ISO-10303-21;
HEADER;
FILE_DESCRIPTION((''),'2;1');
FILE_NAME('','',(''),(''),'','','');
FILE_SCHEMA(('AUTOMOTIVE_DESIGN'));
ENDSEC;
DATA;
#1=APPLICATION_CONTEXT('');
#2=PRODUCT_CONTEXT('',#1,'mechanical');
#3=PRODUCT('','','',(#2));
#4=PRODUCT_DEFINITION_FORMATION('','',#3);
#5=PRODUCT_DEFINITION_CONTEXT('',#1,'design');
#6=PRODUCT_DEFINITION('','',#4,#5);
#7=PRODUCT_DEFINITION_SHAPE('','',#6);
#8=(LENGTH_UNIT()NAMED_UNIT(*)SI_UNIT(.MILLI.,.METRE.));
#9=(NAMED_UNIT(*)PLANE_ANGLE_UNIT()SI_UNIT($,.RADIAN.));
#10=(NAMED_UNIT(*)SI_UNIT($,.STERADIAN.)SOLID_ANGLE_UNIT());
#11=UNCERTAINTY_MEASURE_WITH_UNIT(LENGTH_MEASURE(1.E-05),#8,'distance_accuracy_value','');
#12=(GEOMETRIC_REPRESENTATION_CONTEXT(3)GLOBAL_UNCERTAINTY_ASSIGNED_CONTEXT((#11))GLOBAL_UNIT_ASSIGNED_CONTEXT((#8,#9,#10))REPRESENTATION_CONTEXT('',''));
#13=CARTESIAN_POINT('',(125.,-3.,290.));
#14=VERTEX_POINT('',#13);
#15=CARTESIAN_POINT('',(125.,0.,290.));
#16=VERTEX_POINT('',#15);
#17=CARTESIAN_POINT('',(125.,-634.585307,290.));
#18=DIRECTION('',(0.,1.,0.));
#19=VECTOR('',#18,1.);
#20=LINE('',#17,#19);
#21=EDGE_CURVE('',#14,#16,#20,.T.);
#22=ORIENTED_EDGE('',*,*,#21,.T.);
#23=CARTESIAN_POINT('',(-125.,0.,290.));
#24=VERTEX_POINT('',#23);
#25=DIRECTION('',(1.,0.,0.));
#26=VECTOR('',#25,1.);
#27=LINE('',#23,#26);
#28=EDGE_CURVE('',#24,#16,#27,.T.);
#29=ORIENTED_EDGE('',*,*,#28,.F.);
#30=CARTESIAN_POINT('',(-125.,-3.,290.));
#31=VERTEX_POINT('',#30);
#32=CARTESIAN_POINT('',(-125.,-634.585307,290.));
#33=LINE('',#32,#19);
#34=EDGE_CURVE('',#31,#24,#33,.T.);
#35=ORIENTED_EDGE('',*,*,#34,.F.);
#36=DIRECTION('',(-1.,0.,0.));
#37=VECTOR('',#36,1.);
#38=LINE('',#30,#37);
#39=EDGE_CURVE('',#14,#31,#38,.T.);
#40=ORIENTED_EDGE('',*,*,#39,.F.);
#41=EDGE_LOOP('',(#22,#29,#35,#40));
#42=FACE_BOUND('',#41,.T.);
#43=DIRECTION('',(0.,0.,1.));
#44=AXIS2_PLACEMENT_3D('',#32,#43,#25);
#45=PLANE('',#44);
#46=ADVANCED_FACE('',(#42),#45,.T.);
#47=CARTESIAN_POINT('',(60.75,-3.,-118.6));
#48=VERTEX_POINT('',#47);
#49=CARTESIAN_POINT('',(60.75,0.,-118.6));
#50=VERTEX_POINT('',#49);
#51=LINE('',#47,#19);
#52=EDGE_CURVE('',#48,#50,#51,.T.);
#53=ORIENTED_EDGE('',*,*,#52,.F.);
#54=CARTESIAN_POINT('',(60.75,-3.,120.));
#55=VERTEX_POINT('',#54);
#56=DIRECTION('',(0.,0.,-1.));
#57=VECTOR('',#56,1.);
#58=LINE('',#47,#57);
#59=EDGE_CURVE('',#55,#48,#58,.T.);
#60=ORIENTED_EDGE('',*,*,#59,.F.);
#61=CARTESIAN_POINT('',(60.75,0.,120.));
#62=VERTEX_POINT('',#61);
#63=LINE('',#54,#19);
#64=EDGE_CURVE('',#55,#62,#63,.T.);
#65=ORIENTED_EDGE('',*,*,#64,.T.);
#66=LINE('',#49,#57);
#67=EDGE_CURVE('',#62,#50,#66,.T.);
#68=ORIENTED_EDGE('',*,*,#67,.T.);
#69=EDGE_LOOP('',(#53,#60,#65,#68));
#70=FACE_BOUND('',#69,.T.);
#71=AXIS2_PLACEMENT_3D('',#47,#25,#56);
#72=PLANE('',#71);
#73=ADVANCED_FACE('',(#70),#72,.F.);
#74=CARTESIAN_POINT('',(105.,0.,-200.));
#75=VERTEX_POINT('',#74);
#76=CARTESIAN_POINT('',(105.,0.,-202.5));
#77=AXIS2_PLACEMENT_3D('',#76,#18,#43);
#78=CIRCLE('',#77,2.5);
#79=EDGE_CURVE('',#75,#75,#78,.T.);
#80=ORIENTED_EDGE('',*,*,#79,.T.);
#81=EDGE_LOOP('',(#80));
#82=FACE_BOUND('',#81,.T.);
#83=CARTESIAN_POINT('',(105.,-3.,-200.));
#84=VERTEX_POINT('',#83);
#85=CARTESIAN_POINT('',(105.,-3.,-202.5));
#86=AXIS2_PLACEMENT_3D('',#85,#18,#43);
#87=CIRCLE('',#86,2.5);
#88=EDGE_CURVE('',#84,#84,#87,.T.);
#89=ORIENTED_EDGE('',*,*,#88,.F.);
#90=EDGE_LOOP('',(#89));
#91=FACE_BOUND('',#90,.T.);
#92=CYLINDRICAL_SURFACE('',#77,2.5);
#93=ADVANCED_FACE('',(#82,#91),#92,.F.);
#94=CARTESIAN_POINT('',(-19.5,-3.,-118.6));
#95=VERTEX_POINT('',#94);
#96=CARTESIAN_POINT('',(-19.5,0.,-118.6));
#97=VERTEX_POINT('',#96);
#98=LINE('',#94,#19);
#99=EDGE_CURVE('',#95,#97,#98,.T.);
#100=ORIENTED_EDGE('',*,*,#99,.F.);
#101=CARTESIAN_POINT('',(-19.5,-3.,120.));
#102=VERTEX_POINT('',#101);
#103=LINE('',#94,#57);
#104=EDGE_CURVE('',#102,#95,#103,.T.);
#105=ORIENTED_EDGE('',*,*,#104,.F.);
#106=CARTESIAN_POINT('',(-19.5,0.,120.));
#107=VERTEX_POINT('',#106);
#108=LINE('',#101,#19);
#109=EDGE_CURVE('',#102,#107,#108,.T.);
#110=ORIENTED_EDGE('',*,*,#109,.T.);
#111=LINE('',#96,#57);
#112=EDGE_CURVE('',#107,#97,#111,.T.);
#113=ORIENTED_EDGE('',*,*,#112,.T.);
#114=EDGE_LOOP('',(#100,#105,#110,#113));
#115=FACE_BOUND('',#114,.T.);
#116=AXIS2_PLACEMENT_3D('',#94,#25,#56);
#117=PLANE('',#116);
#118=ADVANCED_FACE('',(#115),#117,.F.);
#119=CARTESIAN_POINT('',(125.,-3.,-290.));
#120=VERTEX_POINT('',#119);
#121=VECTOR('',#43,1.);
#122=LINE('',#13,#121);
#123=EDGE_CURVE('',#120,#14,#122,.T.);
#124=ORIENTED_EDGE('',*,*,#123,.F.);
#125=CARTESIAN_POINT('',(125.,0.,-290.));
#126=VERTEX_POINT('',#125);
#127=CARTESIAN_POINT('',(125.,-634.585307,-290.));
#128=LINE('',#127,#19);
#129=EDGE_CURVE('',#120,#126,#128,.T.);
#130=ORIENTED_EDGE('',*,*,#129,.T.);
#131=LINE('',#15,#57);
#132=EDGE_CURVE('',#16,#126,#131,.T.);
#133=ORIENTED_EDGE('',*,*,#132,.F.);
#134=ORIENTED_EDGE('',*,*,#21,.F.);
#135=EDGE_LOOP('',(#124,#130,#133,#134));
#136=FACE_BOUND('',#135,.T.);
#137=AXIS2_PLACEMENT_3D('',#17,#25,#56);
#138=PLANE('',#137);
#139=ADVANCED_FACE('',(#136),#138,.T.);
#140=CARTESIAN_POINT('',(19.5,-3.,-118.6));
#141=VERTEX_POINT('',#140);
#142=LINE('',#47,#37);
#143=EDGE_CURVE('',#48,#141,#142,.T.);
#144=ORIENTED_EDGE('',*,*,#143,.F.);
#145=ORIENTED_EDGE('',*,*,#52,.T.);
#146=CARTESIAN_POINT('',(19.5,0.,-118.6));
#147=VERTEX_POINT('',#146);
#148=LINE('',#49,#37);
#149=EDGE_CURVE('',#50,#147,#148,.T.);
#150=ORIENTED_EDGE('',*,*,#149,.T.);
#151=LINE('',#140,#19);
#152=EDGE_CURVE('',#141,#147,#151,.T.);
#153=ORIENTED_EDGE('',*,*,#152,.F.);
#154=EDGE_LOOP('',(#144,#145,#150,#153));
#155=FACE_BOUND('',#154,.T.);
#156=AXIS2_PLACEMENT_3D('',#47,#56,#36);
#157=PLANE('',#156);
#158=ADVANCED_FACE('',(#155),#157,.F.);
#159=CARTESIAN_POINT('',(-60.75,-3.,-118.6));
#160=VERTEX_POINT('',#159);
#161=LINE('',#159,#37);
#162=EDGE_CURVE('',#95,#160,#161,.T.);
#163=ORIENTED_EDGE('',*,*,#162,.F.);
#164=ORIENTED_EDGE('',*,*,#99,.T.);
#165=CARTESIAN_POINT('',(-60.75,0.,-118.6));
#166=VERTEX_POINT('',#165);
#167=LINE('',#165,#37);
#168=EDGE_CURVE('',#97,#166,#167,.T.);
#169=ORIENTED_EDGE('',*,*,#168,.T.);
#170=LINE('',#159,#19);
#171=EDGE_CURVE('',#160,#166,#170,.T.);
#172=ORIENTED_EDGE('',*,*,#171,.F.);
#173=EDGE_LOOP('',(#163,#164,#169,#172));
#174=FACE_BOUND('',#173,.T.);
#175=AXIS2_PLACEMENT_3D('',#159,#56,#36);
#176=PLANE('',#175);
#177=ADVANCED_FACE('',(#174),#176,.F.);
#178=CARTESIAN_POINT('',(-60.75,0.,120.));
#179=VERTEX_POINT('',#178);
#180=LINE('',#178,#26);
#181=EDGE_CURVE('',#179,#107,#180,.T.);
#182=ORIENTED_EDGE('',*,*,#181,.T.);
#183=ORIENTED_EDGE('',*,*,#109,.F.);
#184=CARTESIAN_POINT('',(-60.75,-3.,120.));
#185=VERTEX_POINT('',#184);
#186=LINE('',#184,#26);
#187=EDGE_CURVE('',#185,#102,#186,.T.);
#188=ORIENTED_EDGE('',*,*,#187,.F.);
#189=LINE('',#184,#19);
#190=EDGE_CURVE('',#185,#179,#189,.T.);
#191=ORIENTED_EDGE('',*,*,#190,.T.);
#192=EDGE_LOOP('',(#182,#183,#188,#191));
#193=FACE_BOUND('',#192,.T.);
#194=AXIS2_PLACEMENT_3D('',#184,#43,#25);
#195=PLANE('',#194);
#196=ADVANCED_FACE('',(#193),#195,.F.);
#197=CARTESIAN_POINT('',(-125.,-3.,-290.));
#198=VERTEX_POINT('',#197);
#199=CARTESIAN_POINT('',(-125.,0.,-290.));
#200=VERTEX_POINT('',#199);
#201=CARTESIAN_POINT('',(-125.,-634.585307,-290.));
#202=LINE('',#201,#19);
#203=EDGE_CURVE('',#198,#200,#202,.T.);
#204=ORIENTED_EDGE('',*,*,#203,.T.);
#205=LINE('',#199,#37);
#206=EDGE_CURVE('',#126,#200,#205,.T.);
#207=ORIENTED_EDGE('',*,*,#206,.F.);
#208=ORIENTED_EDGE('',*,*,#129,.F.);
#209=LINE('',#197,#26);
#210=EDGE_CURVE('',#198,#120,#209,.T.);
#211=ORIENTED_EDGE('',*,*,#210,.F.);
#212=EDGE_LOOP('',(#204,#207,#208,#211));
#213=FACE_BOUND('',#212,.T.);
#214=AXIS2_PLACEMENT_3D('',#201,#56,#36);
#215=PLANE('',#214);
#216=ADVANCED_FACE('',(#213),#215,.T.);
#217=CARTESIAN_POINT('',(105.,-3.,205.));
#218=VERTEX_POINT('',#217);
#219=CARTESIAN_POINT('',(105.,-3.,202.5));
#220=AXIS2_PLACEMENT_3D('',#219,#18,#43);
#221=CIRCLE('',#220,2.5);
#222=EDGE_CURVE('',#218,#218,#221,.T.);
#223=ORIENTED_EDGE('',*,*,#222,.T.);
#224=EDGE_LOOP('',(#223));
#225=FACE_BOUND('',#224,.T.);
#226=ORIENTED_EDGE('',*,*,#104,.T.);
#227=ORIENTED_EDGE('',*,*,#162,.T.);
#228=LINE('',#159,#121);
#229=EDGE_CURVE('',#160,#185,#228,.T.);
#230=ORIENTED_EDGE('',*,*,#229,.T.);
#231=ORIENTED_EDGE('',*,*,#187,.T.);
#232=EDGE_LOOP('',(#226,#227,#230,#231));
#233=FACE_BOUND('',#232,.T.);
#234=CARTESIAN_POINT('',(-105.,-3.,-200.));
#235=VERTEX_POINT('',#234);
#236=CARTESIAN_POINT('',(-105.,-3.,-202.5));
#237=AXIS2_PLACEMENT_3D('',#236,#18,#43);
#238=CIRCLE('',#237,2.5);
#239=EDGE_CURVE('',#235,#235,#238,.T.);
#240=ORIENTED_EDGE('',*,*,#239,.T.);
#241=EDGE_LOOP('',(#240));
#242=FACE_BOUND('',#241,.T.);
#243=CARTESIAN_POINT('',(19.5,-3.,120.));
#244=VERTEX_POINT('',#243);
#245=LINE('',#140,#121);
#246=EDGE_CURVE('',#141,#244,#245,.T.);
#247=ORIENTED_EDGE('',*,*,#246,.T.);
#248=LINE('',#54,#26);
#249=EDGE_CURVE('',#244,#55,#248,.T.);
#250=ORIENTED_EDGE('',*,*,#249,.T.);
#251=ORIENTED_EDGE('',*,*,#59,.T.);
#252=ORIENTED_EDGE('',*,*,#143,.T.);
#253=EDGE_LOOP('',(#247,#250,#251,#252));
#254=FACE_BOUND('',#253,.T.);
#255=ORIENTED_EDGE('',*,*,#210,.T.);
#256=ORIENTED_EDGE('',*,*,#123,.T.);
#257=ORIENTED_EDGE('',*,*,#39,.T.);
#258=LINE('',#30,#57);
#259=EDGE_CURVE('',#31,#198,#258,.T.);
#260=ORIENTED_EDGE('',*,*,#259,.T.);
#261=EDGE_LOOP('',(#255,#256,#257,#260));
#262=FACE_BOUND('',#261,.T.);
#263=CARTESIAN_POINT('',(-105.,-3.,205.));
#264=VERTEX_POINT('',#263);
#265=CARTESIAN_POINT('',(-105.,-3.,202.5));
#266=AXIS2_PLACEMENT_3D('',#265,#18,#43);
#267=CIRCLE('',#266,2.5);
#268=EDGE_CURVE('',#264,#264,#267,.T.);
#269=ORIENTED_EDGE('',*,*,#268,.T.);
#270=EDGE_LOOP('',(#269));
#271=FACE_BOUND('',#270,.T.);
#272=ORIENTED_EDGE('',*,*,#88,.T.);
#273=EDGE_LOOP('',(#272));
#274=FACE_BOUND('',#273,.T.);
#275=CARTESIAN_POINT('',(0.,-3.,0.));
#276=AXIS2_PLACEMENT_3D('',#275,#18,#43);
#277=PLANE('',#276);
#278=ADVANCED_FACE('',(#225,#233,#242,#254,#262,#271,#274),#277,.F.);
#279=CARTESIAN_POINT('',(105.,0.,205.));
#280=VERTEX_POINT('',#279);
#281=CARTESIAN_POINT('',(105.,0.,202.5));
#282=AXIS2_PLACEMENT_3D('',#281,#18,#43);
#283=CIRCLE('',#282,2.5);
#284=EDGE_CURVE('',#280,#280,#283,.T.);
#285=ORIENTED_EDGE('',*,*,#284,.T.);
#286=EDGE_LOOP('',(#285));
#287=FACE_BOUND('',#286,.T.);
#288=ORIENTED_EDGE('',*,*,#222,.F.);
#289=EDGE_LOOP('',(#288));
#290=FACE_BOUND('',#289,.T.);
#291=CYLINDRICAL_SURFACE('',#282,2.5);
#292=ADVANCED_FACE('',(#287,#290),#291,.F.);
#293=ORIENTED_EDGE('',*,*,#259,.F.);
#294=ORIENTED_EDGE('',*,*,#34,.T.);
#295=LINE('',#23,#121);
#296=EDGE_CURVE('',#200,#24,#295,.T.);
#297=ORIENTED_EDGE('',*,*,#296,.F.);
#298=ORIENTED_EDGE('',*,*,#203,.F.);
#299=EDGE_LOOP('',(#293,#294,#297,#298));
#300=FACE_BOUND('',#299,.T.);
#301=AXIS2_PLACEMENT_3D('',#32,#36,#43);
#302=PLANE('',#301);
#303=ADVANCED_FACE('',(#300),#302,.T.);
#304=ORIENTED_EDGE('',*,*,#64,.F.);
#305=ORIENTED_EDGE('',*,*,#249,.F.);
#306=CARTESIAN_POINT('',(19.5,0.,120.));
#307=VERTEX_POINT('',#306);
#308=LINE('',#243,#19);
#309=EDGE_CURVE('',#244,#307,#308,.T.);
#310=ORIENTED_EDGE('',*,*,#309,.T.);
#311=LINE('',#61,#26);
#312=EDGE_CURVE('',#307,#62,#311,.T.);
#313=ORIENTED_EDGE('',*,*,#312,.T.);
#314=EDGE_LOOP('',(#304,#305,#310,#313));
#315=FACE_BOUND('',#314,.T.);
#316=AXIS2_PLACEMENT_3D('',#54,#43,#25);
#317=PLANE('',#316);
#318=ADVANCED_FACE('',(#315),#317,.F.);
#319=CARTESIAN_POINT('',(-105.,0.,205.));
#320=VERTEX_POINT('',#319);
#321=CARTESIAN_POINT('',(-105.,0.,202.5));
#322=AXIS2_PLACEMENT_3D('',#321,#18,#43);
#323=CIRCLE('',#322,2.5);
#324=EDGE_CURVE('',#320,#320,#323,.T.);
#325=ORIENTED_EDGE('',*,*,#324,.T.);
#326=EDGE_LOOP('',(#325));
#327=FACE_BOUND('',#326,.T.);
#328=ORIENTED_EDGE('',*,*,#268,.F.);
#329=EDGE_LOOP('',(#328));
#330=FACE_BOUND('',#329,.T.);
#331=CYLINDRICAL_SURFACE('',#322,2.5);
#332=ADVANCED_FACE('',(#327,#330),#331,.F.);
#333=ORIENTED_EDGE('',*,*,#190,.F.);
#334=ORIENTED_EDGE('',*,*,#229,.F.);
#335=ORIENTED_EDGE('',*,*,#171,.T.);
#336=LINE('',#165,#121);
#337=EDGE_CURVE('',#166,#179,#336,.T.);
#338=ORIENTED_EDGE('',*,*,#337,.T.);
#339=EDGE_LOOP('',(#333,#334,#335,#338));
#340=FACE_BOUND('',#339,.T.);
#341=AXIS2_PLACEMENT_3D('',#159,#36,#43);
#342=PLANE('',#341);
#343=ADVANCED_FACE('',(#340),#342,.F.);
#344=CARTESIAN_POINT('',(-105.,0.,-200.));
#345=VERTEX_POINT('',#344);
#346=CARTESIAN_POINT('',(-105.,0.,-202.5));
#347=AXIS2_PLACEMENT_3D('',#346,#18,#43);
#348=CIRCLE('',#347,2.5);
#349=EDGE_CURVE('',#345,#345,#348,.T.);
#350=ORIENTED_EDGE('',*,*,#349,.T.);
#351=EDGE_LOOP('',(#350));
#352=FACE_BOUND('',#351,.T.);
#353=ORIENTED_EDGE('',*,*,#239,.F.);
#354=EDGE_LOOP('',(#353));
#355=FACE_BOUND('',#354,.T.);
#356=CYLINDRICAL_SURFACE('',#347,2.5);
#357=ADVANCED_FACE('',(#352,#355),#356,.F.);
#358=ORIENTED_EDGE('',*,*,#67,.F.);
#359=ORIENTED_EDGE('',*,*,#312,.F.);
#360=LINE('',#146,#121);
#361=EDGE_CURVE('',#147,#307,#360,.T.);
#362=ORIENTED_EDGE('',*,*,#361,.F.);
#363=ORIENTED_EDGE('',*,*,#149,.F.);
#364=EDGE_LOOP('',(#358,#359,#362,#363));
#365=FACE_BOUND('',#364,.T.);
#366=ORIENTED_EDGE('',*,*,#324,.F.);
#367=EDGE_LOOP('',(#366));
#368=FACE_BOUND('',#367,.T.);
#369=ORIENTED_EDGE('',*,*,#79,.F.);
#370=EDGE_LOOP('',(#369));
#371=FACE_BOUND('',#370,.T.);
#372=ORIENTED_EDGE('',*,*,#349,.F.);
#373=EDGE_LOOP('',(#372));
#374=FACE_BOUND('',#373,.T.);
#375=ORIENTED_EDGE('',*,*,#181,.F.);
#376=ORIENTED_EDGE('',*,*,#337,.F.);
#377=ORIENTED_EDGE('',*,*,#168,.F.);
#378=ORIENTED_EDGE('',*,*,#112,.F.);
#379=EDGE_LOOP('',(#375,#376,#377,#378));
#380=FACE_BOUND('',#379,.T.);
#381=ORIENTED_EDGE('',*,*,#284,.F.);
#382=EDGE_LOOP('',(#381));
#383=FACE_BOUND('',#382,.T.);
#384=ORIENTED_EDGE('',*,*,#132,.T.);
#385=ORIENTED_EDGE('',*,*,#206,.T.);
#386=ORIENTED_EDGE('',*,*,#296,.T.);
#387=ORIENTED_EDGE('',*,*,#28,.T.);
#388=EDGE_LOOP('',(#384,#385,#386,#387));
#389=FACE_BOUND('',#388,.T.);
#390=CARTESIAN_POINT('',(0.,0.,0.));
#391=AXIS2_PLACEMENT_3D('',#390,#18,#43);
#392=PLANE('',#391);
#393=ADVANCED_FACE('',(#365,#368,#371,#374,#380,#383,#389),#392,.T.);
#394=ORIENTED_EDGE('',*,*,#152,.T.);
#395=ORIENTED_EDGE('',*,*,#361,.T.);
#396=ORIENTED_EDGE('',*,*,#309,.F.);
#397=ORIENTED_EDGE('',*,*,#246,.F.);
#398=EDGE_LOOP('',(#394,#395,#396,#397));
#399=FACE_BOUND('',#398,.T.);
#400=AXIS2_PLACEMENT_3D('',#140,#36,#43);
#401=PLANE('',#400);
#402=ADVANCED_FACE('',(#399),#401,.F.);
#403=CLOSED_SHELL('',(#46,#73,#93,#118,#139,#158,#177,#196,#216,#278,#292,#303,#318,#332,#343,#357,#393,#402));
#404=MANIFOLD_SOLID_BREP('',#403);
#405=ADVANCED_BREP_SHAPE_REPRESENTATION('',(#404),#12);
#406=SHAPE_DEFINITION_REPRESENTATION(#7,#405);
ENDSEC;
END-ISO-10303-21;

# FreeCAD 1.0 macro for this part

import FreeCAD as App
import Part
import Sketcher

V = App.Vector
Q = App.Units.Quantity


def add_polygon(sketch, points):
    """Adds a closed chain of lines whose ends are joined by coincident constraints."""
    first, n = sketch.GeometryCount, len(points)
    for a, b in zip(points, points[1:] + points[:1]):
        sketch.addGeometry(Part.LineSegment(App.Vector(*a, 0), App.Vector(*b, 0)), False)
    for i in range(n):
        sketch.addConstraint(Sketcher.Constraint("Coincident", first + i, 2, first + (i + 1) % n, 1))

doc = App.newDocument("Part")
body = doc.addObject("PartDesign::Body", "Body")

sketch1 = body.newObject("Sketcher::SketchObject", "Sketch")
sketch1.AttachmentSupport = (doc.getObject("XZ_Plane"), [""])
sketch1.MapMode = "FlatFace"
add_polygon(sketch1, [(-115, -212), (-115, 212), (115, 212), (115, -212)])
sketch1.addConstraint(Sketcher.Constraint("Vertical", 0))
sketch1.addConstraint(Sketcher.Constraint("Horizontal", 1))
sketch1.addConstraint(Sketcher.Constraint("Vertical", 2))
sketch1.addConstraint(Sketcher.Constraint("Horizontal", 3))
sketch1.addConstraint(Sketcher.Constraint("Symmetric", 0, 2, 2, 2, -1, 1))
sketch1.addConstraint(Sketcher.Constraint("DistanceX", 1, 1, 1, 2, Q("230 mm")))
sketch1.addConstraint(Sketcher.Constraint("DistanceY", 0, 1, 0, 2, Q("425 mm")))
pad1 = body.newObject("PartDesign::Pad", "Pad")
pad1.Profile = sketch1
pad1.Length = 3

sketch2 = body.newObject("Sketcher::SketchObject", "Sketch001")
sketch2.AttachmentSupport = (doc.getObject("XZ_Plane"), [""])
sketch2.MapMode = "FlatFace"
sketch2.addGeometry(Part.Circle(V(-105, -202.5, 0), V(0, 0, 1), 2.5), False)
sketch2.addGeometry(Part.Circle(V(105, -202.5, 0), V(0, 0, 1), 2.5), False)
sketch2.addGeometry(Part.Circle(V(105, 202.5, 0), V(0, 0, 1), 2.5), False)
sketch2.addGeometry(Part.Circle(V(-105, 202.5, 0), V(0, 0, 1), 2.5), False)
sketch2.addConstraint(Sketcher.Constraint("Equal", 0, 1))
sketch2.addConstraint(Sketcher.Constraint("Equal", 1, 2))
sketch2.addConstraint(Sketcher.Constraint("Equal", 2, 3))
sketch2.addConstraint(Sketcher.Constraint("Symmetric", 0, 3, 2, 3, -1, 1))
sketch2.addConstraint(Sketcher.Constraint("Symmetric", 1, 3, 3, 3, -1, 1))
sketch2.addConstraint(Sketcher.Constraint("Symmetric", 0, 3, 1, 3, -2))
sketch2.addConstraint(Sketcher.Constraint("Diameter", 0, Q("5 mm")))
sketch2.addConstraint(Sketcher.Constraint("DistanceX", 0, 3, -1, 1, Q("105 mm")))
sketch2.addConstraint(Sketcher.Constraint("DistanceY", 1, 3, 2, 3, Q("405 mm")))
doc.recompute()
hole = body.newObject("PartDesign::Hole", "Hole")
hole.Profile = sketch2
hole.ThreadType = "None"
hole.Diameter = 5
hole.DepthType = "ThroughAll"
hole.Reversed = True

sketch3 = body.newObject("Sketcher::SketchObject", "Sketch002")
sketch3.AttachmentSupport = (doc.getObject("XZ_Plane"), [""])
sketch3.MapMode = "FlatFace"
add_polygon(sketch3, [(-61, -119), (-61, 120), (-20, 120), (-20, -119)])
add_polygon(sketch3, [(20, -119), (20, 120), (61, 120), (61, -119)])
sketch3.addConstraint(Sketcher.Constraint("Vertical", 0))
sketch3.addConstraint(Sketcher.Constraint("Horizontal", 1))
sketch3.addConstraint(Sketcher.Constraint("Vertical", 2))
sketch3.addConstraint(Sketcher.Constraint("Horizontal", 3))
sketch3.addConstraint(Sketcher.Constraint("Vertical", 4))
sketch3.addConstraint(Sketcher.Constraint("Horizontal", 5))
sketch3.addConstraint(Sketcher.Constraint("Vertical", 6))
sketch3.addConstraint(Sketcher.Constraint("Horizontal", 7))
sketch3.addConstraint(Sketcher.Constraint("Symmetric", 1, 2, 4, 2, -2))
sketch3.addConstraint(Sketcher.Constraint("Symmetric", 3, 2, 6, 2, -2))
sketch3.addConstraint(Sketcher.Constraint("DistanceY", 0, 1, 0, 2, Q("238.6 mm")))
sketch3.addConstraint(Sketcher.Constraint("DistanceY", -1, 1, 0, 2, Q("120 mm")))
sketch3.addConstraint(Sketcher.Constraint("DistanceX", 1, 2, 4, 2, Q("39 mm")))
sketch3.addConstraint(Sketcher.Constraint("DistanceX", 1, 1, 1, 2, Q("41.25 mm")))
pocket1 = body.newObject("PartDesign::Pocket", "Pocket")
pocket1.Profile = sketch3
pocket1.Type = "ThroughAll"
pocket1.Reversed = True

sketch4 = body.newObject("Sketcher::SketchObject", "Sketch003")
sketch4.AttachmentSupport = (doc.getObject("XZ_Plane"), [""])
sketch4.MapMode = "FlatFace"
add_polygon(sketch4, [(-125, -290), (-125, 290), (125, 290), (125, -290)])
add_polygon(sketch4, [(115, 212), (-115, 212), (-115, -212), (115, -212)])
sketch4.addConstraint(Sketcher.Constraint("Vertical", 0))
sketch4.addConstraint(Sketcher.Constraint("Horizontal", 1))
sketch4.addConstraint(Sketcher.Constraint("Vertical", 2))
sketch4.addConstraint(Sketcher.Constraint("Horizontal", 3))
sketch4.addConstraint(Sketcher.Constraint("Horizontal", 4))
sketch4.addConstraint(Sketcher.Constraint("Vertical", 5))
sketch4.addConstraint(Sketcher.Constraint("Horizontal", 6))
sketch4.addConstraint(Sketcher.Constraint("Vertical", 7))
sketch4.addConstraint(Sketcher.Constraint("Symmetric", 0, 2, 2, 2, -1, 1))
sketch4.addConstraint(Sketcher.Constraint("Symmetric", 4, 2, 6, 2, -1, 1))
sketch4.addConstraint(Sketcher.Constraint("DistanceX", 1, 1, 1, 2, Q("250 mm")))
sketch4.addConstraint(Sketcher.Constraint("DistanceX", 4, 2, 4, 1, Q("230 mm")))
sketch4.addConstraint(Sketcher.Constraint("DistanceY", 0, 1, 0, 2, Q("580 mm")))
sketch4.addConstraint(Sketcher.Constraint("DistanceY", 5, 2, 5, 1, Q("425 mm")))
pad2 = body.newObject("PartDesign::Pad", "Pad001")
pad2.Profile = sketch4
pad2.Length = 3

doc.recompute()
